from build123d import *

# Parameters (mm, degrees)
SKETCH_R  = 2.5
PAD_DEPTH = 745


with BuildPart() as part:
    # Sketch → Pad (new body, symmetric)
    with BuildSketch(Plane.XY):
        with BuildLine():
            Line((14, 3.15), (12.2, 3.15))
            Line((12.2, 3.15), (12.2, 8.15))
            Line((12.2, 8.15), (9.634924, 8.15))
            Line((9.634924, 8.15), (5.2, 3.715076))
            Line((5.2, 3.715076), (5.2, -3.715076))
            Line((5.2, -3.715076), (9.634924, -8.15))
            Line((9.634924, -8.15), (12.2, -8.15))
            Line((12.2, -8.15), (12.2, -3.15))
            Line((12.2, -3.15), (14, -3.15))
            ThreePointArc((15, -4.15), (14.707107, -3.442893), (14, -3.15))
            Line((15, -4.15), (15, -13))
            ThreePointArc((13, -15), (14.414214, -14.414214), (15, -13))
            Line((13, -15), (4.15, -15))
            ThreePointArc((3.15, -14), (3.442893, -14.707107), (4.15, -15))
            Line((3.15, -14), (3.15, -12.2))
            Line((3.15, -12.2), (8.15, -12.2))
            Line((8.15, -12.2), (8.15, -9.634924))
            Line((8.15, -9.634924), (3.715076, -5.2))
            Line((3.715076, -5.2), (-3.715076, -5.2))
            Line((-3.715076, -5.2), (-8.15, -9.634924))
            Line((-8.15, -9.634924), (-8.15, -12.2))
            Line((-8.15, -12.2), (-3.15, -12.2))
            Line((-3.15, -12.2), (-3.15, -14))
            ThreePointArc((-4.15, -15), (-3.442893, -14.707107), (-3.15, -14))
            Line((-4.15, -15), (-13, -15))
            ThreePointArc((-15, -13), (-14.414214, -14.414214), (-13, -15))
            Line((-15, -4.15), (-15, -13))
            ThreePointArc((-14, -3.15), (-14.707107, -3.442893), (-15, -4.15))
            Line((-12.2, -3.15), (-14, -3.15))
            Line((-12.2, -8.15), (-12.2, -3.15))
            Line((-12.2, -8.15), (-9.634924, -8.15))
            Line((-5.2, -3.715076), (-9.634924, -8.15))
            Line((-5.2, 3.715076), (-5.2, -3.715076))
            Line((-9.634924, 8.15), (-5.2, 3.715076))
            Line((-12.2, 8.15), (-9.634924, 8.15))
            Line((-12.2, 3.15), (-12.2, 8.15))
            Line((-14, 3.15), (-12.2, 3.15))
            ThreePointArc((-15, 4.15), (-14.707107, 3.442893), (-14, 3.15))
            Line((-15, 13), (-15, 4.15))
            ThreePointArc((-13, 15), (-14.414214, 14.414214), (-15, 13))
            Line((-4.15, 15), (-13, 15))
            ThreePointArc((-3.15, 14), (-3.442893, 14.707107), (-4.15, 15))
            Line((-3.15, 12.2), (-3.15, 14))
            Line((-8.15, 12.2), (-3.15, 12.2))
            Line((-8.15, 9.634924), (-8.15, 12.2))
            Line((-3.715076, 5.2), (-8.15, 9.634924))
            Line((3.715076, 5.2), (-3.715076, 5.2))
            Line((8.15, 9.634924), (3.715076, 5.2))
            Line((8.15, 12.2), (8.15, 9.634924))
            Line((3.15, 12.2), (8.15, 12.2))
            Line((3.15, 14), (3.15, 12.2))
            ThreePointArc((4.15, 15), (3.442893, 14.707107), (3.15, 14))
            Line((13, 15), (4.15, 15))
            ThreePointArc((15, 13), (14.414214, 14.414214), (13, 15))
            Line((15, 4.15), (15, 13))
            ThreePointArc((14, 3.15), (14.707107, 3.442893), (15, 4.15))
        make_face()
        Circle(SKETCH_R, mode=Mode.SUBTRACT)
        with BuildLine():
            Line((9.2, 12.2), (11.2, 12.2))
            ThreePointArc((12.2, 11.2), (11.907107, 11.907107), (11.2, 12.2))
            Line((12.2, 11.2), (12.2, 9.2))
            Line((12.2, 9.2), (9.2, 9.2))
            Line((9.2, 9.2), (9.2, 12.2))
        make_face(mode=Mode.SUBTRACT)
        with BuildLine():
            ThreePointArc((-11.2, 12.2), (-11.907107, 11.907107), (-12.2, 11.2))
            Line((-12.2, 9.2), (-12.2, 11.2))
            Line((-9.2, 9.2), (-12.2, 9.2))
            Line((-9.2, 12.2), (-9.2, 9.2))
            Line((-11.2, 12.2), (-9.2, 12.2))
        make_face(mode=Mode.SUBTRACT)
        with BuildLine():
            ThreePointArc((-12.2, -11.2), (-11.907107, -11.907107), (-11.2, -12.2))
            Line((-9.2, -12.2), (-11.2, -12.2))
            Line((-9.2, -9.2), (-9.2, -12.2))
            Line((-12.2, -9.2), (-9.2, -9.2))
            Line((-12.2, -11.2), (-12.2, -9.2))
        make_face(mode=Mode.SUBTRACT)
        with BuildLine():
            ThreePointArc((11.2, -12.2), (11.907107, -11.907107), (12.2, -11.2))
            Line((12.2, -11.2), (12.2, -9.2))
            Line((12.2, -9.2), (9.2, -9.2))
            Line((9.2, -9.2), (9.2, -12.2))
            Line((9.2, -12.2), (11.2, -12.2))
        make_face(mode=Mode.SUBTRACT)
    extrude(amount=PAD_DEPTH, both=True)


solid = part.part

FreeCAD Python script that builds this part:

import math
import FreeCAD as App
import Part
import Sketcher
from FreeCAD import Vector
Q = App.Units.Quantity

doc = App.newDocument("Part")
body = doc.addObject("PartDesign::Body", "Body")

# Sketch on XY plane
sketch1 = body.newObject("Sketcher::SketchObject", "Sketch")
sketch1.AttachmentSupport = (doc.getObject("XY_Plane"), [""])
sketch1.MapMode = "FlatFace"
sketch1.addGeometry([
    Part.LineSegment(Vector(12.2, 3.15, 0), Vector(14, 3.15, 0)),  # 0
    Part.ArcOfCircle(Part.Circle(Vector(14.000001, 4.149999, 0), Vector(0, 0, 1), 0.999999), math.radians(-90.000043), math.radians(0.000043)),  # 1
    Part.LineSegment(Vector(15, 4.15, 0), Vector(15, 13, 0)),  # 2
    Part.ArcOfCircle(Part.Circle(Vector(13.000001, 13.000001, 0), Vector(0, 0, 1), 1.999999), math.radians(-0.000043), math.radians(90.000043)),  # 3
    Part.LineSegment(Vector(13, 15, 0), Vector(4.15, 15, 0)),  # 4
    Part.ArcOfCircle(Part.Circle(Vector(4.149999, 14.000001, 0), Vector(0, 0, 1), 0.999999), math.radians(89.999957), math.radians(180.000043)),  # 5
    Part.LineSegment(Vector(3.15, 14, 0), Vector(3.15, 12.2, 0)),  # 6
    Part.LineSegment(Vector(3.15, 12.2, 0), Vector(8.15, 12.2, 0)),  # 7
    Part.LineSegment(Vector(8.15, 12.2, 0), Vector(8.15, 9.634924, 0)),  # 8
    Part.LineSegment(Vector(8.15, 9.634924, 0), Vector(3.715076, 5.2, 0)),  # 9
    Part.LineSegment(Vector(3.715076, 5.2, 0), Vector(-3.715076, 5.2, 0)),  # 10
    Part.LineSegment(Vector(-3.715076, 5.2, 0), Vector(-8.15, 9.634924, 0)),  # 11
    Part.LineSegment(Vector(-8.15, 9.634924, 0), Vector(-8.15, 12.2, 0)),  # 12
    Part.LineSegment(Vector(-8.15, 12.2, 0), Vector(-3.15, 12.2, 0)),  # 13
    Part.LineSegment(Vector(-3.15, 12.2, 0), Vector(-3.15, 14, 0)),  # 14
    Part.ArcOfCircle(Part.Circle(Vector(-4.149999, 14.000001, 0), Vector(0, 0, 1), 0.999999), math.radians(-0.000043), math.radians(90.000043)),  # 15
    Part.LineSegment(Vector(-4.15, 15, 0), Vector(-13, 15, 0)),  # 16
    Part.ArcOfCircle(Part.Circle(Vector(-13.000001, 13.000001, 0), Vector(0, 0, 1), 1.999999), math.radians(89.999957), math.radians(180.000043)),  # 17
    Part.LineSegment(Vector(-15, 13, 0), Vector(-15, 4.15, 0)),  # 18
    Part.ArcOfCircle(Part.Circle(Vector(-14.000001, 4.149999, 0), Vector(0, 0, 1), 0.999999), math.radians(179.999957), math.radians(270.000043)),  # 19
    Part.LineSegment(Vector(-14, 3.15, 0), Vector(-12.2, 3.15, 0)),  # 20
    Part.LineSegment(Vector(-12.2, 3.15, 0), Vector(-12.2, 8.15, 0)),  # 21
    Part.LineSegment(Vector(-12.2, 8.15, 0), Vector(-9.634924, 8.15, 0)),  # 22
    Part.LineSegment(Vector(-9.634924, 8.15, 0), Vector(-5.2, 3.715076, 0)),  # 23
    Part.LineSegment(Vector(-5.2, 3.715076, 0), Vector(-5.2, -3.715076, 0)),  # 24
    Part.LineSegment(Vector(-5.2, -3.715076, 0), Vector(-9.634924, -8.15, 0)),  # 25
    Part.LineSegment(Vector(-9.634924, -8.15, 0), Vector(-12.2, -8.15, 0)),  # 26
    Part.LineSegment(Vector(-12.2, -8.15, 0), Vector(-12.2, -3.15, 0)),  # 27
    Part.LineSegment(Vector(-12.2, -3.15, 0), Vector(-14, -3.15, 0)),  # 28
    Part.ArcOfCircle(Part.Circle(Vector(-14.000001, -4.149999, 0), Vector(0, 0, 1), 0.999999), math.radians(89.999957), math.radians(180.000043)),  # 29
    Part.LineSegment(Vector(-15, -4.15, 0), Vector(-15, -13, 0)),  # 30
    Part.ArcOfCircle(Part.Circle(Vector(-13.000001, -13.000001, 0), Vector(0, 0, 1), 1.999999), math.radians(179.999957), math.radians(270.000043)),  # 31
    Part.LineSegment(Vector(-13, -15, 0), Vector(-4.15, -15, 0)),  # 32
    Part.ArcOfCircle(Part.Circle(Vector(-4.149999, -14.000001, 0), Vector(0, 0, 1), 0.999999), math.radians(-90.000043), math.radians(0.000043)),  # 33
    Part.LineSegment(Vector(-3.15, -14, 0), Vector(-3.15, -12.2, 0)),  # 34
    Part.LineSegment(Vector(-3.15, -12.2, 0), Vector(-8.15, -12.2, 0)),  # 35
    Part.LineSegment(Vector(-8.15, -12.2, 0), Vector(-8.15, -9.634924, 0)),  # 36
    Part.LineSegment(Vector(-8.15, -9.634924, 0), Vector(-3.715076, -5.2, 0)),  # 37
    Part.LineSegment(Vector(-3.715076, -5.2, 0), Vector(3.715076, -5.2, 0)),  # 38
    Part.LineSegment(Vector(3.715076, -5.2, 0), Vector(8.15, -9.634924, 0)),  # 39
    Part.LineSegment(Vector(8.15, -9.634924, 0), Vector(8.15, -12.2, 0)),  # 40
    Part.LineSegment(Vector(8.15, -12.2, 0), Vector(3.15, -12.2, 0)),  # 41
    Part.LineSegment(Vector(3.15, -12.2, 0), Vector(3.15, -14, 0)),  # 42
    Part.ArcOfCircle(Part.Circle(Vector(4.149999, -14.000001, 0), Vector(0, 0, 1), 0.999999), math.radians(179.999957), math.radians(270.000043)),  # 43
    Part.LineSegment(Vector(4.15, -15, 0), Vector(13, -15, 0)),  # 44
    Part.ArcOfCircle(Part.Circle(Vector(13.000001, -13.000001, 0), Vector(0, 0, 1), 1.999999), math.radians(-90.000043), math.radians(0.000043)),  # 45
    Part.LineSegment(Vector(15, -13, 0), Vector(15, -4.15, 0)),  # 46
    Part.ArcOfCircle(Part.Circle(Vector(14.000001, -4.149999, 0), Vector(0, 0, 1), 0.999999), math.radians(-0.000043), math.radians(90.000043)),  # 47
    Part.LineSegment(Vector(14, -3.15, 0), Vector(12.2, -3.15, 0)),  # 48
    Part.LineSegment(Vector(12.2, -3.15, 0), Vector(12.2, -8.15, 0)),  # 49
    Part.LineSegment(Vector(12.2, -8.15, 0), Vector(9.634924, -8.15, 0)),  # 50
    Part.LineSegment(Vector(9.634924, -8.15, 0), Vector(5.2, -3.715076, 0)),  # 51
    Part.LineSegment(Vector(5.2, -3.715076, 0), Vector(5.2, 3.715076, 0)),  # 52
    Part.LineSegment(Vector(5.2, 3.715076, 0), Vector(9.634924, 8.15, 0)),  # 53
    Part.LineSegment(Vector(9.634924, 8.15, 0), Vector(12.2, 8.15, 0)),  # 54
    Part.LineSegment(Vector(12.2, 8.15, 0), Vector(12.2, 3.15, 0)),  # 55
    Part.LineSegment(Vector(11.2, -12.2, 0), Vector(9.2, -12.2, 0)),  # 56
    Part.LineSegment(Vector(9.2, -12.2, 0), Vector(9.2, -9.2, 0)),  # 57
    Part.LineSegment(Vector(9.2, -9.2, 0), Vector(12.2, -9.2, 0)),  # 58
    Part.LineSegment(Vector(12.2, -9.2, 0), Vector(12.2, -11.2, 0)),  # 59
    Part.ArcOfCircle(Part.Circle(Vector(11.200001, -11.200001, 0), Vector(0, 0, 1), 0.999999), math.radians(-90.000043), math.radians(0.000043)),  # 60
    Part.LineSegment(Vector(-12.2, -11.2, 0), Vector(-12.2, -9.2, 0)),  # 61
    Part.LineSegment(Vector(-12.2, -9.2, 0), Vector(-9.2, -9.2, 0)),  # 62
    Part.LineSegment(Vector(-9.2, -9.2, 0), Vector(-9.2, -12.2, 0)),  # 63
    Part.LineSegment(Vector(-9.2, -12.2, 0), Vector(-11.2, -12.2, 0)),  # 64
    Part.ArcOfCircle(Part.Circle(Vector(-11.200001, -11.200001, 0), Vector(0, 0, 1), 0.999999), math.radians(179.999957), math.radians(270.000043)),  # 65
    Part.LineSegment(Vector(9.2, 12.2, 0), Vector(11.2, 12.2, 0)),  # 66
    Part.ArcOfCircle(Part.Circle(Vector(11.200001, 11.200001, 0), Vector(0, 0, 1), 0.999999), math.radians(-0.000043), math.radians(90.000043)),  # 67
    Part.LineSegment(Vector(12.2, 11.2, 0), Vector(12.2, 9.2, 0)),  # 68
    Part.LineSegment(Vector(12.2, 9.2, 0), Vector(9.2, 9.2, 0)),  # 69
    Part.LineSegment(Vector(9.2, 9.2, 0), Vector(9.2, 12.2, 0)),  # 70
    Part.Circle(Vector(0, 0, 0), Vector(0, 0, 1), 2.5),  # 71
    Part.LineSegment(Vector(-11.2, 12.2, 0), Vector(-9.2, 12.2, 0)),  # 72
    Part.LineSegment(Vector(-9.2, 12.2, 0), Vector(-9.2, 9.2, 0)),  # 73
    Part.LineSegment(Vector(-9.2, 9.2, 0), Vector(-12.2, 9.2, 0)),  # 74
    Part.LineSegment(Vector(-12.2, 9.2, 0), Vector(-12.2, 11.2, 0)),  # 75
    Part.ArcOfCircle(Part.Circle(Vector(-11.200001, 11.200001, 0), Vector(0, 0, 1), 0.999999), math.radians(89.999957), math.radians(180.000043)),  # 76
], False)
sketch1.addConstraint([
    Sketcher.Constraint("Tangent", 0, 2, 1, 1),
    Sketcher.Constraint("Tangent", 1, 2, 2, 1),
    Sketcher.Constraint("Tangent", 2, 2, 3, 1),
    Sketcher.Constraint("Tangent", 3, 2, 4, 1),
    Sketcher.Constraint("Tangent", 4, 2, 5, 1),
    Sketcher.Constraint("Tangent", 5, 2, 6, 1),
    Sketcher.Constraint("Coincident", 6, 2, 7, 1),
    Sketcher.Constraint("Coincident", 7, 2, 8, 1),
    Sketcher.Constraint("Coincident", 8, 2, 9, 1),
    Sketcher.Constraint("Coincident", 9, 2, 10, 1),
    Sketcher.Constraint("Coincident", 10, 2, 11, 1),
    Sketcher.Constraint("Coincident", 11, 2, 12, 1),
    Sketcher.Constraint("Coincident", 12, 2, 13, 1),
    Sketcher.Constraint("Coincident", 13, 2, 14, 1),
    Sketcher.Constraint("Tangent", 14, 2, 15, 1),
    Sketcher.Constraint("Tangent", 15, 2, 16, 1),
    Sketcher.Constraint("Tangent", 16, 2, 17, 1),
    Sketcher.Constraint("Tangent", 17, 2, 18, 1),
    Sketcher.Constraint("Tangent", 18, 2, 19, 1),
    Sketcher.Constraint("Tangent", 19, 2, 20, 1),
    Sketcher.Constraint("Coincident", 20, 2, 21, 1),
    Sketcher.Constraint("Coincident", 21, 2, 22, 1),
    Sketcher.Constraint("Coincident", 22, 2, 23, 1),
    Sketcher.Constraint("Coincident", 23, 2, 24, 1),
    Sketcher.Constraint("Coincident", 24, 2, 25, 1),
    Sketcher.Constraint("Coincident", 25, 2, 26, 1),
    Sketcher.Constraint("Coincident", 26, 2, 27, 1),
    Sketcher.Constraint("Coincident", 27, 2, 28, 1),
    Sketcher.Constraint("Tangent", 28, 2, 29, 1),
    Sketcher.Constraint("Tangent", 29, 2, 30, 1),
    Sketcher.Constraint("Tangent", 30, 2, 31, 1),
    Sketcher.Constraint("Tangent", 31, 2, 32, 1),
    Sketcher.Constraint("Tangent", 32, 2, 33, 1),
    Sketcher.Constraint("Tangent", 33, 2, 34, 1),
    Sketcher.Constraint("Coincident", 34, 2, 35, 1),
    Sketcher.Constraint("Coincident", 35, 2, 36, 1),
    Sketcher.Constraint("Coincident", 36, 2, 37, 1),
    Sketcher.Constraint("Coincident", 37, 2, 38, 1),
    Sketcher.Constraint("Coincident", 38, 2, 39, 1),
    Sketcher.Constraint("Coincident", 39, 2, 40, 1),
    Sketcher.Constraint("Coincident", 40, 2, 41, 1),
    Sketcher.Constraint("Coincident", 41, 2, 42, 1),
    Sketcher.Constraint("Tangent", 42, 2, 43, 1),
    Sketcher.Constraint("Tangent", 43, 2, 44, 1),
    Sketcher.Constraint("Tangent", 44, 2, 45, 1),
    Sketcher.Constraint("Tangent", 45, 2, 46, 1),
    Sketcher.Constraint("Tangent", 46, 2, 47, 1),
    Sketcher.Constraint("Tangent", 47, 2, 48, 1),
    Sketcher.Constraint("Coincident", 48, 2, 49, 1),
    Sketcher.Constraint("Coincident", 49, 2, 50, 1),
    Sketcher.Constraint("Coincident", 50, 2, 51, 1),
    Sketcher.Constraint("Coincident", 51, 2, 52, 1),
    Sketcher.Constraint("Coincident", 52, 2, 53, 1),
    Sketcher.Constraint("Coincident", 53, 2, 54, 1),
    Sketcher.Constraint("Coincident", 54, 2, 55, 1),
    Sketcher.Constraint("Coincident", 55, 2, 0, 1),
    Sketcher.Constraint("Coincident", 56, 2, 57, 1),
    Sketcher.Constraint("Coincident", 57, 2, 58, 1),
    Sketcher.Constraint("Coincident", 58, 2, 59, 1),
    Sketcher.Constraint("Tangent", 59, 2, 60, 2),
    Sketcher.Constraint("Tangent", 60, 1, 56, 1),
    Sketcher.Constraint("Coincident", 61, 2, 62, 1),
    Sketcher.Constraint("Coincident", 62, 2, 63, 1),
    Sketcher.Constraint("Coincident", 63, 2, 64, 1),
    Sketcher.Constraint("Tangent", 64, 2, 65, 2),
    Sketcher.Constraint("Tangent", 65, 1, 61, 1),
    Sketcher.Constraint("Tangent", 66, 2, 67, 2),
    Sketcher.Constraint("Tangent", 67, 1, 68, 1),
    Sketcher.Constraint("Coincident", 68, 2, 69, 1),
    Sketcher.Constraint("Coincident", 69, 2, 70, 1),
    Sketcher.Constraint("Coincident", 70, 2, 66, 1),
    Sketcher.Constraint("Coincident", 72, 2, 73, 1),
    Sketcher.Constraint("Coincident", 73, 2, 74, 1),
    Sketcher.Constraint("Coincident", 74, 2, 75, 1),
    Sketcher.Constraint("Tangent", 75, 2, 76, 2),
    Sketcher.Constraint("Tangent", 76, 1, 72, 1),
    Sketcher.Constraint("Horizontal", 0),
    Sketcher.Constraint("Vertical", 2),
    Sketcher.Constraint("Horizontal", 4),
    Sketcher.Constraint("Vertical", 6),
    Sketcher.Constraint("Horizontal", 7),
    Sketcher.Constraint("Vertical", 8),
    Sketcher.Constraint("Horizontal", 10),
    Sketcher.Constraint("Vertical", 12),
    Sketcher.Constraint("Horizontal", 13),
    Sketcher.Constraint("Vertical", 14),
    Sketcher.Constraint("Horizontal", 16),
    Sketcher.Constraint("Vertical", 18),
    Sketcher.Constraint("Horizontal", 20),
    Sketcher.Constraint("Vertical", 21),
    Sketcher.Constraint("Horizontal", 22),
    Sketcher.Constraint("Vertical", 24),
    Sketcher.Constraint("Horizontal", 26),
    Sketcher.Constraint("Vertical", 27),
    Sketcher.Constraint("Horizontal", 28),
    Sketcher.Constraint("Vertical", 30),
    Sketcher.Constraint("Horizontal", 32),
    Sketcher.Constraint("Vertical", 34),
    Sketcher.Constraint("Horizontal", 35),
    Sketcher.Constraint("Vertical", 36),
    Sketcher.Constraint("Horizontal", 38),
    Sketcher.Constraint("Vertical", 40),
    Sketcher.Constraint("Horizontal", 41),
    Sketcher.Constraint("Vertical", 42),
    Sketcher.Constraint("Horizontal", 44),
    Sketcher.Constraint("Vertical", 46),
    Sketcher.Constraint("Horizontal", 48),
    Sketcher.Constraint("Vertical", 49),
    Sketcher.Constraint("Horizontal", 50),
    Sketcher.Constraint("Vertical", 52),
    Sketcher.Constraint("Horizontal", 54),
    Sketcher.Constraint("Vertical", 55),
    Sketcher.Constraint("Horizontal", 56),
    Sketcher.Constraint("Vertical", 57),
    Sketcher.Constraint("Horizontal", 58),
    Sketcher.Constraint("Vertical", 59),
    Sketcher.Constraint("Vertical", 61),
    Sketcher.Constraint("Horizontal", 62),
    Sketcher.Constraint("Vertical", 63),
    Sketcher.Constraint("Horizontal", 64),
    Sketcher.Constraint("Horizontal", 66),
    Sketcher.Constraint("Vertical", 68),
    Sketcher.Constraint("Horizontal", 69),
    Sketcher.Constraint("Vertical", 70),
    Sketcher.Constraint("Horizontal", 72),
    Sketcher.Constraint("Vertical", 73),
    Sketcher.Constraint("Horizontal", 74),
    Sketcher.Constraint("Vertical", 75),
    Sketcher.Constraint("Coincident", 71, 3, -1, 1),
    Sketcher.Constraint("Equal", 1, 5),
    Sketcher.Constraint("Equal", 5, 15),
    Sketcher.Constraint("Equal", 3, 17),
    Sketcher.Constraint("Equal", 15, 19),
    Sketcher.Constraint("Equal", 19, 29),
    Sketcher.Constraint("Equal", 17, 31),
    Sketcher.Constraint("Equal", 29, 33),
    Sketcher.Constraint("Equal", 33, 43),
    Sketcher.Constraint("Equal", 31, 45),
    Sketcher.Constraint("Equal", 43, 47),
    Sketcher.Constraint("Equal", 47, 60),
    Sketcher.Constraint("Equal", 60, 65),
    Sketcher.Constraint("Equal", 65, 67),
    Sketcher.Constraint("Equal", 67, 76),
    Sketcher.Constraint("Symmetric", 1, 3, 29, 3, -1, 1),
    Sketcher.Constraint("Symmetric", 5, 3, 33, 3, -1, 1),
    Sketcher.Constraint("Symmetric", 15, 3, 43, 3, -1, 1),
    Sketcher.Constraint("Symmetric", 19, 3, 47, 3, -1, 1),
    Sketcher.Constraint("Symmetric", 65, 3, 67, 3, -1, 1),
    Sketcher.Constraint("Symmetric", 60, 3, 76, 3, -1, 1),
    Sketcher.Constraint("Symmetric", 7, 2, 35, 2, -1, 1),
    Sketcher.Constraint("Symmetric", 9, 2, 37, 2, -1, 1),
    Sketcher.Constraint("Symmetric", 11, 2, 39, 2, -1, 1),
    Sketcher.Constraint("Symmetric", 21, 2, 49, 2, -1, 1),
    Sketcher.Constraint("Symmetric", 23, 2, 51, 2, -1, 1),
    Sketcher.Constraint("Symmetric", 25, 2, 53, 2, -1, 1),
    Sketcher.Constraint("Symmetric", 62, 2, 69, 2, -1, 1),
    Sketcher.Constraint("Symmetric", 57, 2, 73, 2, -1, 1),
    Sketcher.Constraint("Symmetric", 5, 3, 15, 3, -2),
    Sketcher.Constraint("Symmetric", 1, 3, 19, 3, -2),
    Sketcher.Constraint("Symmetric", 60, 3, 65, 3, -2),
    Sketcher.Constraint("Symmetric", 8, 2, 11, 2, -2),
    Sketcher.Constraint("Symmetric", 26, 2, 49, 2, -2),
    Sketcher.Constraint("Symmetric", 57, 2, 62, 2, -2),
    Sketcher.Constraint("Perpendicular", 9, 11),
    Sketcher.Constraint("Parallel", 11, 23),
    Sketcher.Constraint("Perpendicular", 23, 25),
    Sketcher.Constraint("Parallel", 25, 37),
    Sketcher.Constraint("Perpendicular", 37, 39),
    Sketcher.Constraint("Parallel", 39, 51),
    Sketcher.Constraint("Perpendicular", 51, 53),
    Sketcher.Constraint("Horizontal", 7, 2, 12, 2),
    Sketcher.Constraint("Horizontal", 35, 2, 40, 2),
    Sketcher.Constraint("Horizontal", 24, 2, 51, 2),
    Sketcher.Constraint("Horizontal", 41, 2, 56, 2),
    Sketcher.Constraint("Vertical", 22, 2, 25, 2),
    Sketcher.Constraint("Vertical", 49, 2, 54, 2),
    Sketcher.Constraint("Vertical", 55, 2, 58, 2),
    Sketcher.Constraint("Equal", 44, 2),
    Sketcher.Constraint("Equal", 48, 6),
    Sketcher.Constraint("Equal", 54, 8),
    Sketcher.Constraint("Equal", 41, 21),
    Sketcher.Constraint("Equal", 38, 24),
    Sketcher.Constraint("Equal", 74, 57),
    Sketcher.Constraint("Equal", 11, 23),
    Sketcher.Constraint("Diameter", 71, Q("5 mm")),
    Sketcher.Constraint("Radius", 1, Q("0.999999 mm")),
    Sketcher.Constraint("Radius", 3, Q("1.999999 mm")),
    Sketcher.Constraint("DistanceX", 7, 1, 7, 2, Q("5 mm")),
    Sketcher.Constraint("DistanceX", 56, 2, 56, 1, Q("2 mm")),
    Sketcher.Constraint("DistanceX", 0, 1, 0, 2, Q("1.8 mm")),
    Sketcher.Constraint("DistanceX", -1, 1, 1, 3, Q("14.000001 mm")),
    Sketcher.Constraint("DistanceX", 4, 2, 4, 1, Q("8.85 mm")),
    Sketcher.Constraint("DistanceY", -1, 1, 9, 2, Q("5.2 mm")),
    Sketcher.Constraint("DistanceX", 10, 2, 10, 1, Q("7.430152 mm")),
])
pad1 = body.newObject("PartDesign::Pad", "Pad")
pad1.Profile = sketch1
pad1.Length = 1490
pad1.Midplane = True

doc.recompute()
